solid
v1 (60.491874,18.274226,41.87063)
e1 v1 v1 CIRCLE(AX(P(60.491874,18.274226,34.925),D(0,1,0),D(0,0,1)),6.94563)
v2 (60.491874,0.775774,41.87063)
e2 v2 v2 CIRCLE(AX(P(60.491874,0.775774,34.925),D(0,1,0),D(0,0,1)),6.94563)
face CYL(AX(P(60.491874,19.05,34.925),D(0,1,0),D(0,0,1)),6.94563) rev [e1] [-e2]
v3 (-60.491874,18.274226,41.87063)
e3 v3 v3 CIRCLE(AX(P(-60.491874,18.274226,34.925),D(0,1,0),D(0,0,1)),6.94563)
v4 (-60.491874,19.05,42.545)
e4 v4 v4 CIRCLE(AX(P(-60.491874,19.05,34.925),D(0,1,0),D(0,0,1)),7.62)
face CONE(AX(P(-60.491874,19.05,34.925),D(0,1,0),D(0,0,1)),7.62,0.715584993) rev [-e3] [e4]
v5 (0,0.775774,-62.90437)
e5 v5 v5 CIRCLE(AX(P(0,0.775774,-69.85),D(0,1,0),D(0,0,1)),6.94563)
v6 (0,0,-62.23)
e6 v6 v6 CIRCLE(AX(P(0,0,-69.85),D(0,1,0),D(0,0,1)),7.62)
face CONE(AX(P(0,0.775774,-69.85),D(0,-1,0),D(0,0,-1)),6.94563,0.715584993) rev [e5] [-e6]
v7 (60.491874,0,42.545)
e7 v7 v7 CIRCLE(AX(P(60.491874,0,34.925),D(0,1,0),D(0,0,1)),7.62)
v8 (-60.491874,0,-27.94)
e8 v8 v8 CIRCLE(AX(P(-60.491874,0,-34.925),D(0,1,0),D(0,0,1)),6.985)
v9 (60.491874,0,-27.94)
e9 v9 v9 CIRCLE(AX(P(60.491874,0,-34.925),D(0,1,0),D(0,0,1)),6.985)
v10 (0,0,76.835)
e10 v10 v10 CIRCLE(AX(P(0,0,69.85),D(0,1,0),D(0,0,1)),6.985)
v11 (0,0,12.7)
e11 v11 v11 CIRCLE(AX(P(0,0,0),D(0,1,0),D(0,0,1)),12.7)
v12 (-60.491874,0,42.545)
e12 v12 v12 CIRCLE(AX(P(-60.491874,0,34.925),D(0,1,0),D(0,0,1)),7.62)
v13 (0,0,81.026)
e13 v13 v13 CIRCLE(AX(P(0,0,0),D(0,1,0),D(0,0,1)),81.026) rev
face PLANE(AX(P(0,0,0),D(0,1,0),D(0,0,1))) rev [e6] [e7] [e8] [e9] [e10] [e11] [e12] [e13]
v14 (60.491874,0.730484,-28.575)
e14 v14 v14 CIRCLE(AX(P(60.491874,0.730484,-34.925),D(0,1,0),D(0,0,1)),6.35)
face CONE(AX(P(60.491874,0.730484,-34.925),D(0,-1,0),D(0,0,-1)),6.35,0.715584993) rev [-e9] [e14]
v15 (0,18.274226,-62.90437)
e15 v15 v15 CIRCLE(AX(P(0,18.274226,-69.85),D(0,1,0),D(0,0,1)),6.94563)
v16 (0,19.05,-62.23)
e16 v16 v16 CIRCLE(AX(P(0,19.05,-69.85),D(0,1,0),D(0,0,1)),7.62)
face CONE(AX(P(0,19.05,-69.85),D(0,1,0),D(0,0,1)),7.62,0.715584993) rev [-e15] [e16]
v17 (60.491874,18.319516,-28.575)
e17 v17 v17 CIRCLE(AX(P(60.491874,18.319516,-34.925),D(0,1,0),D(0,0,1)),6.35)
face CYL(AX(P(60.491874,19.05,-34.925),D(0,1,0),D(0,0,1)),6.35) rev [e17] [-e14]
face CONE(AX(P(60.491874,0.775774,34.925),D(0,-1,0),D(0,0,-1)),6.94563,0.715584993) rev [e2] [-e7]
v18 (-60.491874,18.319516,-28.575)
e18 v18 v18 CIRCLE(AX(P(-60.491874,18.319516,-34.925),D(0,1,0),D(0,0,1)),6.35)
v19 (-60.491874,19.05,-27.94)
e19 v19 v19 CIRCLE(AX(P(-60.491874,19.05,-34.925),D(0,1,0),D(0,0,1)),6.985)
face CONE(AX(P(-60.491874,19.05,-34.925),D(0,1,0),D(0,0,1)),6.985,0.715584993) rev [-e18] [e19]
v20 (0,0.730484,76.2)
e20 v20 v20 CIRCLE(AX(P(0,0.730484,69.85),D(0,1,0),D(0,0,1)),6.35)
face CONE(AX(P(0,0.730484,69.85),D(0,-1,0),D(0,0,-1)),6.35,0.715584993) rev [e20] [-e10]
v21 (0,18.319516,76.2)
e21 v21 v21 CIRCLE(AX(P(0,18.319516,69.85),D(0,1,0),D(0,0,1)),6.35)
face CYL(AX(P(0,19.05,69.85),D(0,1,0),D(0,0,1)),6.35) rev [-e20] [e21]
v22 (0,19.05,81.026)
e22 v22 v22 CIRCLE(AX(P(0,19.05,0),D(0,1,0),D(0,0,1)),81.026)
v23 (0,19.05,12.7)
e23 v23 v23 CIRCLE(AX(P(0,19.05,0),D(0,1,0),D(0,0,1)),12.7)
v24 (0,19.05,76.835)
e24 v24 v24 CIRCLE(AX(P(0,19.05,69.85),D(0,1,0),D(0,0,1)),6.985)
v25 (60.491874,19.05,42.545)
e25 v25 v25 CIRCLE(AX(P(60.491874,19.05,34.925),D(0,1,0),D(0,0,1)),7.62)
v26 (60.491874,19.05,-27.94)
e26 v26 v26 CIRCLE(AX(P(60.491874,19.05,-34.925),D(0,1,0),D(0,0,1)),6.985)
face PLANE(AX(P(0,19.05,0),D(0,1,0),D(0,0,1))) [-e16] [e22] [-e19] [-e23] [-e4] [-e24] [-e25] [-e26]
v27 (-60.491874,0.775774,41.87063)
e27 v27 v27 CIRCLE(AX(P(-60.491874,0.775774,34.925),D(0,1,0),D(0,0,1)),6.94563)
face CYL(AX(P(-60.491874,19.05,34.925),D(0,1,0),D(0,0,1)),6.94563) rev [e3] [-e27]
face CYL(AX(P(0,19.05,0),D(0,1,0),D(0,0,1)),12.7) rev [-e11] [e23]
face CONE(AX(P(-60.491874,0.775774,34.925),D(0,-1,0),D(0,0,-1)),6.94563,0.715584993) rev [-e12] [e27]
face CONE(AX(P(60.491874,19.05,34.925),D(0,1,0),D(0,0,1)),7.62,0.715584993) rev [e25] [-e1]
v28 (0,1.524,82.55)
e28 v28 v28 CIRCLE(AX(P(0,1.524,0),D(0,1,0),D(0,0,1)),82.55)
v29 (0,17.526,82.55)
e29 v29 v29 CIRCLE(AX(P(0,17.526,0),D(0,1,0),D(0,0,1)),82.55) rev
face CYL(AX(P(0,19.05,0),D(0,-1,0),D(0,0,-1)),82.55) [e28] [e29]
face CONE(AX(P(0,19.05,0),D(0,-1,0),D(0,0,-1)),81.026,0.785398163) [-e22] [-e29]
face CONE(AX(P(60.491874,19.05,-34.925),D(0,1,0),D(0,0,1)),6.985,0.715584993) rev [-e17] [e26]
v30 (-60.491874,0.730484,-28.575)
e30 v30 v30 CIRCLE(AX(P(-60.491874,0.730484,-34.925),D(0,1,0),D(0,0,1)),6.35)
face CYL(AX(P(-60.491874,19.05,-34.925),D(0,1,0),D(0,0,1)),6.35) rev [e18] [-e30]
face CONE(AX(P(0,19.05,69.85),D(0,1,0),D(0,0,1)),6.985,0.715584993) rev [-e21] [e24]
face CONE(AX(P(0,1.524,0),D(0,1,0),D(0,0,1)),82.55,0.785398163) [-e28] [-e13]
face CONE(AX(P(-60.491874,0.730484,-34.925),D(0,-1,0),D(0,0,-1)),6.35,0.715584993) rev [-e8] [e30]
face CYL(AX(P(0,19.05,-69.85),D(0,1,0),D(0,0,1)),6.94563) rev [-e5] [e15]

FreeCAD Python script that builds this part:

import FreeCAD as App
import Part
import Sketcher

V = App.Vector
Q = App.Units.Quantity


def edges_at(feature, points):
    """Names of the edges that pass closest to the given points."""
    edges = feature.Shape.Edges
    near = lambda p: min(range(len(edges)), key=lambda i: edges[i].distToShape(Part.Vertex(*p))[0])
    return sorted({f"Edge{near(p) + 1}" for p in points})

doc = App.newDocument("Part")
params = doc.addObject("Spreadsheet::Sheet", "Params")
for row, (alias, value) in enumerate([
    ("sketch1_diameter", "6.5 in"),
    ("pad1_length", "0.75 in"),
    ("sketch2_diameter", "1 in"),
    ("hole_diameter", "1 in"),
    ("hole_depth", "0.75 in"),
    ("sketch3_width", "0.75 in"),
    ("sketch3_height", "0.275 in"),
    ("groove_angle", "360 deg"),
    ("linearpattern_pitch", "120.983749 mm"),
    ("linearpattern2_pitch", "120.983749 mm"),
    ("sketch4_height", "0.3 in"),
    ("sketch4_width", "0.75 in"),
    ("groove2_angle", "360 deg"),
    ("linearpattern3_pitch", "120.983749 mm"),
    ("linearpattern4_pitch", "120.983749 mm"),
    ("chamfer_size", "0.06 in"),
], start=1):
    params.set(f"A{row}", alias)
    params.set(f"B{row}", "=" + value)
    params.setAlias(f"B{row}", alias)

body = doc.addObject("PartDesign::Body", "Body")

# Sketch on XZ plane
sketch1 = body.newObject("Sketcher::SketchObject", "Sketch")
sketch1.AttachmentSupport = (doc.getObject("XZ_Plane"), [""])
sketch1.MapMode = "FlatFace"
sketch1.addGeometry(Part.Circle(V(0, 0, 0), V(0, 0, 1), 83), False)
sketch1.addConstraint(Sketcher.Constraint("Coincident", 0, 3, -1, 1))
sketch1.addConstraint(Sketcher.Constraint("Diameter", 0, Q("6.5 in")))
sketch1.setExpression("Constraints[1]", "Params.sketch1_diameter")
pad1 = body.newObject("PartDesign::Pad", "Pad")
pad1.Profile = sketch1
pad1.setExpression("Length", "Params.pad1_length")
pad1.Reversed = True

# Sketch on XZ plane
sketch2 = body.newObject("Sketcher::SketchObject", "Sketch001")
sketch2.AttachmentSupport = (doc.getObject("XZ_Plane"), [""])
sketch2.MapMode = "FlatFace"
sketch2.AttachmentOffset = App.Placement(V(0, 0, -0.75 * 25.4), App.Rotation())
sketch2.addGeometry(Part.Circle(V(0, 0, 0), V(0, 0, 1), 13), False)
sketch2.addConstraint(Sketcher.Constraint("Coincident", 0, 3, -1, 1))
sketch2.addConstraint(Sketcher.Constraint("Diameter", 0, Q("1 in")))
sketch2.setExpression("Constraints[1]", "Params.sketch2_diameter")
doc.recompute()
hole = body.newObject("PartDesign::Hole", "Hole")
hole.Profile = sketch2
hole.ThreadType = "None"
hole.setExpression("Diameter", "Params.hole_diameter")
hole.DepthType = "Dimension"
hole.setExpression("Depth", "Params.hole_depth")
hole.DrillPoint = "Flat"
hole.Reversed = True

# Sketch on YZ plane
sketch3 = body.newObject("Sketcher::SketchObject", "Sketch002")
sketch3.AttachmentSupport = (doc.getObject("YZ_Plane"), [""])
sketch3.MapMode = "FlatFace"
sketch3.addGeometry(Part.LineSegment(V(0, 69.8, 0), V(19.1, 69.8, 0)), False)
sketch3.addGeometry(Part.LineSegment(V(19.1, 69.8, 0), V(19.1, 76.8, 0)), False)
sketch3.addGeometry(Part.LineSegment(V(19.1, 76.8, 0), V(18.3, 76.2, 0)), False)
sketch3.addGeometry(Part.LineSegment(V(18.3, 76.2, 0), V(0.7, 76.2, 0)), False)
sketch3.addGeometry(Part.LineSegment(V(0.7, 76.2, 0), V(0, 76.8, 0)), False)
sketch3.addGeometry(Part.LineSegment(V(0, 76.8, 0), V(0, 69.8, 0)), False)
sketch3.addGeometry(Part.LineSegment(V(19.1, 69.8, 0), V(0, 69.8, 0)), True)  # axis
sketch3.addConstraint(Sketcher.Constraint("Coincident", 0, 2, 1, 1))
sketch3.addConstraint(Sketcher.Constraint("Coincident", 1, 2, 2, 1))
sketch3.addConstraint(Sketcher.Constraint("Coincident", 2, 2, 3, 1))
sketch3.addConstraint(Sketcher.Constraint("Coincident", 3, 2, 4, 1))
sketch3.addConstraint(Sketcher.Constraint("Coincident", 4, 2, 5, 1))
sketch3.addConstraint(Sketcher.Constraint("Coincident", 5, 2, 0, 1))
sketch3.addConstraint(Sketcher.Constraint("Horizontal", 0))
sketch3.addConstraint(Sketcher.Constraint("Vertical", 1))
sketch3.addConstraint(Sketcher.Constraint("Horizontal", 3))
sketch3.addConstraint(Sketcher.Constraint("Vertical", 5))
sketch3.addConstraint(Sketcher.Constraint("Horizontal", 6))
sketch3.addConstraint(Sketcher.Constraint("Coincident", 6, 1, 0, 2))
sketch3.addConstraint(Sketcher.Constraint("PointOnObject", 4, 2, -2))
sketch3.addConstraint(Sketcher.Constraint("PointOnObject", 6, 2, -2))
sketch3.addConstraint(Sketcher.Constraint("Horizontal", 1, 2, 4, 2))
sketch3.addConstraint(Sketcher.Constraint("Equal", 2, 4))
sketch3.addConstraint(Sketcher.Constraint("DistanceY", -1, 1, 2, 2, Q("3 in")))
sketch3.addConstraint(Sketcher.Constraint("Angle", 2, Q("-139 deg")))
sketch3.addConstraint(Sketcher.Constraint("DistanceX", 0, 1, 0, 2, Q("0.75 in")))
sketch3.addConstraint(Sketcher.Constraint("DistanceY", 1, 1, 1, 2, Q("0.275 in")))
sketch3.addConstraint(Sketcher.Constraint("DistanceY", -1, 1, 0, 2, Q("2.75 in")))
sketch3.setExpression("Constraints[18]", "Params.sketch3_width")
sketch3.setExpression("Constraints[19]", "Params.sketch3_height")
groove = body.newObject("PartDesign::Groove", "Groove")
groove.Profile = sketch3
groove.ReferenceAxis = (sketch3, ["Axis0"])
groove.setExpression("Angle", "Params.groove_angle")
doc.recompute()

datumline = body.newObject("PartDesign::Line", "DatumLine")
datumline.Placement = App.Placement(V(0, 0, 0), App.Rotation(V(0, 0, 1), V(-0.5, 0, -0.866025404)))
linearpattern = body.newObject("PartDesign::LinearPattern", "LinearPattern")
linearpattern.Originals = [groove]
linearpattern.Direction = (datumline, [""])
linearpattern.Mode = "offset"
linearpattern.setExpression("Offset", "Params.linearpattern_pitch")
linearpattern.Occurrences = 2
body.Tip = linearpattern
doc.recompute()

datumline2 = body.newObject("PartDesign::Line", "DatumLine001")
datumline2.Placement = App.Placement(V(0, 0, 0), App.Rotation(V(0, 0, 1), V(0.5, 0, -0.866025404)))
linearpattern2 = body.newObject("PartDesign::LinearPattern", "LinearPattern001")
linearpattern2.Originals = [groove]
linearpattern2.Direction = (datumline2, [""])
linearpattern2.Mode = "offset"
linearpattern2.setExpression("Offset", "Params.linearpattern2_pitch")
linearpattern2.Occurrences = 2
body.Tip = linearpattern2

# Sketch on YZ plane
sketch4 = body.newObject("Sketcher::SketchObject", "Sketch003")
sketch4.AttachmentSupport = (doc.getObject("YZ_Plane"), [""])
sketch4.MapMode = "FlatFace"
sketch4.addGeometry(Part.LineSegment(V(0, -69.8, 0), V(19.1, -69.8, 0)), False)
sketch4.addGeometry(Part.LineSegment(V(19.1, -69.8, 0), V(19.1, -62.2, 0)), False)
sketch4.addGeometry(Part.LineSegment(V(19.1, -62.2, 0), V(18.3, -62.9, 0)), False)
sketch4.addGeometry(Part.LineSegment(V(18.3, -62.9, 0), V(0.8, -62.9, 0)), False)
sketch4.addGeometry(Part.LineSegment(V(0.8, -62.9, 0), V(0, -62.2, 0)), False)
sketch4.addGeometry(Part.LineSegment(V(0, -62.2, 0), V(0, -69.8, 0)), False)
sketch4.addGeometry(Part.LineSegment(V(19.1, -69.8, 0), V(0, -69.8, 0)), True)  # axis
sketch4.addConstraint(Sketcher.Constraint("Coincident", 0, 2, 1, 1))
sketch4.addConstraint(Sketcher.Constraint("Coincident", 1, 2, 2, 1))
sketch4.addConstraint(Sketcher.Constraint("Coincident", 2, 2, 3, 1))
sketch4.addConstraint(Sketcher.Constraint("Coincident", 3, 2, 4, 1))
sketch4.addConstraint(Sketcher.Constraint("Coincident", 4, 2, 5, 1))
sketch4.addConstraint(Sketcher.Constraint("Coincident", 5, 2, 0, 1))
sketch4.addConstraint(Sketcher.Constraint("Horizontal", 0))
sketch4.addConstraint(Sketcher.Constraint("Vertical", 1))
sketch4.addConstraint(Sketcher.Constraint("Horizontal", 3))
sketch4.addConstraint(Sketcher.Constraint("Vertical", 5))
sketch4.addConstraint(Sketcher.Constraint("Horizontal", 6))
sketch4.addConstraint(Sketcher.Constraint("Coincident", 6, 1, 0, 2))
sketch4.addConstraint(Sketcher.Constraint("PointOnObject", 4, 2, -2))
sketch4.addConstraint(Sketcher.Constraint("PointOnObject", 6, 2, -2))
sketch4.addConstraint(Sketcher.Constraint("Horizontal", 1, 2, 4, 2))
sketch4.addConstraint(Sketcher.Constraint("Equal", 2, 4))
sketch4.addConstraint(Sketcher.Constraint("DistanceY", 1, 1, 1, 2, Q("0.3 in")))
sketch4.addConstraint(Sketcher.Constraint("Angle", 2, Q("-139 deg")))
sketch4.addConstraint(Sketcher.Constraint("DistanceX", 0, 1, 0, 2, Q("0.75 in")))
sketch4.addConstraint(Sketcher.Constraint("DistanceY", 0, 2, -1, 1, Q("2.75 in")))
sketch4.addConstraint(Sketcher.Constraint("Distance", 2, Q("1.027911 mm")))
sketch4.setExpression("Constraints[16]", "Params.sketch4_height")
sketch4.setExpression("Constraints[18]", "Params.sketch4_width")
groove2 = body.newObject("PartDesign::Groove", "Groove001")
groove2.Profile = sketch4
groove2.ReferenceAxis = (sketch4, ["Axis0"])
groove2.setExpression("Angle", "Params.groove2_angle")
doc.recompute()

datumline3 = body.newObject("PartDesign::Line", "DatumLine002")
datumline3.Placement = App.Placement(V(0, 0, 0), App.Rotation(V(0, 0, 1), V(-0.5, 0, 0.866025404)))
linearpattern3 = body.newObject("PartDesign::LinearPattern", "LinearPattern002")
linearpattern3.Originals = [groove2]
linearpattern3.Direction = (datumline3, [""])
linearpattern3.Mode = "offset"
linearpattern3.setExpression("Offset", "Params.linearpattern3_pitch")
linearpattern3.Occurrences = 2
body.Tip = linearpattern3
doc.recompute()

datumline4 = body.newObject("PartDesign::Line", "DatumLine003")
datumline4.Placement = App.Placement(V(0, 0, 0), App.Rotation(V(0, 0, 1), V(0.5, 0, 0.866025404)))
linearpattern4 = body.newObject("PartDesign::LinearPattern", "LinearPattern003")
linearpattern4.Originals = [groove2]
linearpattern4.Direction = (datumline4, [""])
linearpattern4.Mode = "offset"
linearpattern4.setExpression("Offset", "Params.linearpattern4_pitch")
linearpattern4.Occurrences = 2
body.Tip = linearpattern4
doc.recompute()

chamfer = body.newObject("PartDesign::Chamfer", "Chamfer")
chamfer.Base = (linearpattern4, edges_at(linearpattern4, [(0, 0, -82.55), (0, 19.05, -82.55)]))
chamfer.setExpression("Size", "Params.chamfer_size")

doc.recompute()
